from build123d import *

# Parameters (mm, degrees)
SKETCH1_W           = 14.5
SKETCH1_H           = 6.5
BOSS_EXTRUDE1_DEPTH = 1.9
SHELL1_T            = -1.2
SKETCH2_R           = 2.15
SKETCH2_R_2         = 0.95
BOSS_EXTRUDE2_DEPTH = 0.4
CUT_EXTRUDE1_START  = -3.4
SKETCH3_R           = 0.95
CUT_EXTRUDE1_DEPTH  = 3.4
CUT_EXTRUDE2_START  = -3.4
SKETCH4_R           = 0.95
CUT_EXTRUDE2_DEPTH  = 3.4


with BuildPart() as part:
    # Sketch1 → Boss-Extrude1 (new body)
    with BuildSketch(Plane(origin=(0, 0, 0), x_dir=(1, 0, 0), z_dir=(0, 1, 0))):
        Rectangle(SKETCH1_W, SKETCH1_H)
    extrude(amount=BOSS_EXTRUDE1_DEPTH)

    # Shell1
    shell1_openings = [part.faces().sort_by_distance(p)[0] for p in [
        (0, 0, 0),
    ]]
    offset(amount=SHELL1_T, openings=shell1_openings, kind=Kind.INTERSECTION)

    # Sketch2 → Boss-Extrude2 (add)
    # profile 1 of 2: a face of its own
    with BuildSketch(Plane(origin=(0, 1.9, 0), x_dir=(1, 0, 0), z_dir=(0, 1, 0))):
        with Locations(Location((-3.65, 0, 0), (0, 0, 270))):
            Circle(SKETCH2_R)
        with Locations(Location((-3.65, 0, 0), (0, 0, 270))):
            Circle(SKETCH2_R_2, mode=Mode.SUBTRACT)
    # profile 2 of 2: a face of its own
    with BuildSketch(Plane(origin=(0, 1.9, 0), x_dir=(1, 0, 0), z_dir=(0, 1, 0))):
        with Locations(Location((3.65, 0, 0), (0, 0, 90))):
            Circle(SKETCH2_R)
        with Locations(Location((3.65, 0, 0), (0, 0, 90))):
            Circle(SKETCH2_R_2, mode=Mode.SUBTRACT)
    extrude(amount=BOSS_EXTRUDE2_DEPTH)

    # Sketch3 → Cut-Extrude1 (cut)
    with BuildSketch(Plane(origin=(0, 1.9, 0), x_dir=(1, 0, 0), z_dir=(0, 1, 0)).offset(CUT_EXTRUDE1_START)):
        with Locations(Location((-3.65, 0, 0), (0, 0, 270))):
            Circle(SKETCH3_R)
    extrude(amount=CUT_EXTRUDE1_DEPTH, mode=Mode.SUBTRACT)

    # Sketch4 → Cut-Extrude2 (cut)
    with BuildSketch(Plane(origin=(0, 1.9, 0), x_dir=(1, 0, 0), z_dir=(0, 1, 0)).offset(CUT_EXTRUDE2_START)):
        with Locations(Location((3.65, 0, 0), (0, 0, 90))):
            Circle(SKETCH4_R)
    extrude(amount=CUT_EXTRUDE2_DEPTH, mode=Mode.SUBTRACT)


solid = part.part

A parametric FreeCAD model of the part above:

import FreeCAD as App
import Part
import Sketcher

V = App.Vector


def faces_at(feature, points):
    """Names of the faces that lie closest to the given points."""
    faces = feature.Shape.Faces
    near = lambda p: min(range(len(faces)), key=lambda i: faces[i].distToShape(Part.Vertex(*p))[0])
    return sorted({f"Face{near(p) + 1}" for p in points})


def add_polygon(sketch, points):
    """Adds a closed chain of lines whose ends are joined by coincident constraints."""
    first, n = sketch.GeometryCount, len(points)
    for a, b in zip(points, points[1:] + points[:1]):
        sketch.addGeometry(Part.LineSegment(App.Vector(*a, 0), App.Vector(*b, 0)), False)
    for i in range(n):
        sketch.addConstraint(Sketcher.Constraint("Coincident", first + i, 2, first + (i + 1) % n, 1))

doc = App.newDocument("Part")
params = doc.addObject("Spreadsheet::Sheet", "Params")
for row, (alias, value) in enumerate([
    ("sketch1_width", "14.5 mm"),
    ("sketch1_height", "6.5 mm"),
    ("pad1_length", "1.9 mm"),
    ("thickness_wall", "1.2 mm"),
    ("sketch2_diameter", "4.3 mm"),
    ("sketch2_diameter2", "1.9 mm"),
    ("pad2_length", "0.4 mm"),
    ("sketch3_diameter", "1.9 mm"),
    ("pocket1_length", "3.4 mm"),
    ("sketch4_diameter", "1.9 mm"),
    ("pocket2_length", "3.4 mm"),
], start=1):
    params.set(f"A{row}", alias)
    params.set(f"B{row}", "=" + value)
    params.setAlias(f"B{row}", alias)

body = doc.addObject("PartDesign::Body", "Body")

# Sketch on XZ plane
sketch1 = body.newObject("Sketcher::SketchObject", "Sketch")
sketch1.AttachmentSupport = (doc.getObject("XZ_Plane"), [""])
sketch1.MapMode = "FlatFace"
add_polygon(sketch1, [(-7.25, -3.25), (-7.25, 3.25), (7.25, 3.25), (7.25, -3.25)])  # lines 0-3
sketch1.addConstraint(Sketcher.Constraint("Vertical", 0))
sketch1.addConstraint(Sketcher.Constraint("Horizontal", 1))
sketch1.addConstraint(Sketcher.Constraint("Vertical", 2))
sketch1.addConstraint(Sketcher.Constraint("Horizontal", 3))
sketch1.addConstraint(Sketcher.Constraint("Symmetric", 0, 2, 2, 2, -1, 1))
sketch1.addConstraint(Sketcher.Constraint("DistanceX", 1, 1, 1, 2, 14.5))
sketch1.addConstraint(Sketcher.Constraint("DistanceY", 0, 1, 0, 2, 6.5))
sketch1.setExpression("Constraints[9]", "Params.sketch1_width")
sketch1.setExpression("Constraints[10]", "Params.sketch1_height")
pad1 = body.newObject("PartDesign::Pad", "Pad")
pad1.Profile = sketch1
pad1.setExpression("Length", "Params.pad1_length")
pad1.Reversed = True
doc.recompute()

thickness = body.newObject("PartDesign::Thickness", "Thickness")
thickness.Base = (pad1, faces_at(pad1, [(0, 0, 0)]))
thickness.setExpression("Value", "Params.thickness_wall")
thickness.Reversed = True
thickness.Join = "Intersection"

# Sketch on XZ plane
sketch2 = body.newObject("Sketcher::SketchObject", "Sketch001")
sketch2.AttachmentSupport = (doc.getObject("XZ_Plane"), [""])
sketch2.MapMode = "FlatFace"
sketch2.AttachmentOffset = App.Placement(V(0, 0, -1.9), App.Rotation())
sketch2.addGeometry(Part.Circle(V(-3.65, 0, 0), V(0, 0, 1), 2.15), False)
sketch2.addGeometry(Part.Circle(V(-3.65, 0, 0), V(0, 0, 1), 0.95), False)
sketch2.addGeometry(Part.Circle(V(3.65, 0, 0), V(0, 0, 1), 2.15), False)
sketch2.addGeometry(Part.Circle(V(3.65, 0, 0), V(0, 0, 1), 0.95), False)
sketch2.addConstraint(Sketcher.Constraint("Coincident", 1, 3, 0, 3))
sketch2.addConstraint(Sketcher.Constraint("Coincident", 3, 3, 2, 3))
sketch2.addConstraint(Sketcher.Constraint("Equal", 0, 2))
sketch2.addConstraint(Sketcher.Constraint("Equal", 1, 3))
sketch2.addConstraint(Sketcher.Constraint("Symmetric", 0, 3, 2, 3, -1, 1))
sketch2.addConstraint(Sketcher.Constraint("PointOnObject", 0, 3, -1))
sketch2.addConstraint(Sketcher.Constraint("Diameter", 0, 4.3))
sketch2.addConstraint(Sketcher.Constraint("Diameter", 1, 1.9))
sketch2.addConstraint(Sketcher.Constraint("DistanceX", 0, 3, 2, 3, 7.3))
sketch2.setExpression("Constraints[6]", "Params.sketch2_diameter")
sketch2.setExpression("Constraints[7]", "Params.sketch2_diameter2")
pad2 = body.newObject("PartDesign::Pad", "Pad001")
pad2.Profile = sketch2
pad2.setExpression("Length", "Params.pad2_length")
pad2.Reversed = True

# Sketch on XZ plane
sketch3 = body.newObject("Sketcher::SketchObject", "Sketch002")
sketch3.AttachmentSupport = (doc.getObject("XZ_Plane"), [""])
sketch3.MapMode = "FlatFace"
sketch3.AttachmentOffset = App.Placement(V(0, 0, 1.5), App.Rotation())
sketch3.addGeometry(Part.Circle(V(-3.65, 0, 0), V(0, 0, 1), 0.95), False)
sketch3.addConstraint(Sketcher.Constraint("PointOnObject", 0, 3, -1))
sketch3.addConstraint(Sketcher.Constraint("Diameter", 0, 1.9))
sketch3.addConstraint(Sketcher.Constraint("DistanceX", 0, 3, -1, 1, 3.65))
sketch3.setExpression("Constraints[1]", "Params.sketch3_diameter")
pocket1 = body.newObject("PartDesign::Pocket", "Pocket")
pocket1.Profile = sketch3
pocket1.setExpression("Length", "Params.pocket1_length")

# Sketch on XZ plane
sketch4 = body.newObject("Sketcher::SketchObject", "Sketch003")
sketch4.AttachmentSupport = (doc.getObject("XZ_Plane"), [""])
sketch4.MapMode = "FlatFace"
sketch4.AttachmentOffset = App.Placement(V(0, 0, 1.5), App.Rotation())
sketch4.addGeometry(Part.Circle(V(3.65, 0, 0), V(0, 0, 1), 0.95), False)
sketch4.addConstraint(Sketcher.Constraint("PointOnObject", 0, 3, -1))
sketch4.addConstraint(Sketcher.Constraint("Diameter", 0, 1.9))
sketch4.addConstraint(Sketcher.Constraint("DistanceX", -1, 1, 0, 3, 3.65))
sketch4.setExpression("Constraints[1]", "Params.sketch4_diameter")
pocket2 = body.newObject("PartDesign::Pocket", "Pocket001")
pocket2.Profile = sketch4
pocket2.setExpression("Length", "Params.pocket2_length")

doc.recompute()
